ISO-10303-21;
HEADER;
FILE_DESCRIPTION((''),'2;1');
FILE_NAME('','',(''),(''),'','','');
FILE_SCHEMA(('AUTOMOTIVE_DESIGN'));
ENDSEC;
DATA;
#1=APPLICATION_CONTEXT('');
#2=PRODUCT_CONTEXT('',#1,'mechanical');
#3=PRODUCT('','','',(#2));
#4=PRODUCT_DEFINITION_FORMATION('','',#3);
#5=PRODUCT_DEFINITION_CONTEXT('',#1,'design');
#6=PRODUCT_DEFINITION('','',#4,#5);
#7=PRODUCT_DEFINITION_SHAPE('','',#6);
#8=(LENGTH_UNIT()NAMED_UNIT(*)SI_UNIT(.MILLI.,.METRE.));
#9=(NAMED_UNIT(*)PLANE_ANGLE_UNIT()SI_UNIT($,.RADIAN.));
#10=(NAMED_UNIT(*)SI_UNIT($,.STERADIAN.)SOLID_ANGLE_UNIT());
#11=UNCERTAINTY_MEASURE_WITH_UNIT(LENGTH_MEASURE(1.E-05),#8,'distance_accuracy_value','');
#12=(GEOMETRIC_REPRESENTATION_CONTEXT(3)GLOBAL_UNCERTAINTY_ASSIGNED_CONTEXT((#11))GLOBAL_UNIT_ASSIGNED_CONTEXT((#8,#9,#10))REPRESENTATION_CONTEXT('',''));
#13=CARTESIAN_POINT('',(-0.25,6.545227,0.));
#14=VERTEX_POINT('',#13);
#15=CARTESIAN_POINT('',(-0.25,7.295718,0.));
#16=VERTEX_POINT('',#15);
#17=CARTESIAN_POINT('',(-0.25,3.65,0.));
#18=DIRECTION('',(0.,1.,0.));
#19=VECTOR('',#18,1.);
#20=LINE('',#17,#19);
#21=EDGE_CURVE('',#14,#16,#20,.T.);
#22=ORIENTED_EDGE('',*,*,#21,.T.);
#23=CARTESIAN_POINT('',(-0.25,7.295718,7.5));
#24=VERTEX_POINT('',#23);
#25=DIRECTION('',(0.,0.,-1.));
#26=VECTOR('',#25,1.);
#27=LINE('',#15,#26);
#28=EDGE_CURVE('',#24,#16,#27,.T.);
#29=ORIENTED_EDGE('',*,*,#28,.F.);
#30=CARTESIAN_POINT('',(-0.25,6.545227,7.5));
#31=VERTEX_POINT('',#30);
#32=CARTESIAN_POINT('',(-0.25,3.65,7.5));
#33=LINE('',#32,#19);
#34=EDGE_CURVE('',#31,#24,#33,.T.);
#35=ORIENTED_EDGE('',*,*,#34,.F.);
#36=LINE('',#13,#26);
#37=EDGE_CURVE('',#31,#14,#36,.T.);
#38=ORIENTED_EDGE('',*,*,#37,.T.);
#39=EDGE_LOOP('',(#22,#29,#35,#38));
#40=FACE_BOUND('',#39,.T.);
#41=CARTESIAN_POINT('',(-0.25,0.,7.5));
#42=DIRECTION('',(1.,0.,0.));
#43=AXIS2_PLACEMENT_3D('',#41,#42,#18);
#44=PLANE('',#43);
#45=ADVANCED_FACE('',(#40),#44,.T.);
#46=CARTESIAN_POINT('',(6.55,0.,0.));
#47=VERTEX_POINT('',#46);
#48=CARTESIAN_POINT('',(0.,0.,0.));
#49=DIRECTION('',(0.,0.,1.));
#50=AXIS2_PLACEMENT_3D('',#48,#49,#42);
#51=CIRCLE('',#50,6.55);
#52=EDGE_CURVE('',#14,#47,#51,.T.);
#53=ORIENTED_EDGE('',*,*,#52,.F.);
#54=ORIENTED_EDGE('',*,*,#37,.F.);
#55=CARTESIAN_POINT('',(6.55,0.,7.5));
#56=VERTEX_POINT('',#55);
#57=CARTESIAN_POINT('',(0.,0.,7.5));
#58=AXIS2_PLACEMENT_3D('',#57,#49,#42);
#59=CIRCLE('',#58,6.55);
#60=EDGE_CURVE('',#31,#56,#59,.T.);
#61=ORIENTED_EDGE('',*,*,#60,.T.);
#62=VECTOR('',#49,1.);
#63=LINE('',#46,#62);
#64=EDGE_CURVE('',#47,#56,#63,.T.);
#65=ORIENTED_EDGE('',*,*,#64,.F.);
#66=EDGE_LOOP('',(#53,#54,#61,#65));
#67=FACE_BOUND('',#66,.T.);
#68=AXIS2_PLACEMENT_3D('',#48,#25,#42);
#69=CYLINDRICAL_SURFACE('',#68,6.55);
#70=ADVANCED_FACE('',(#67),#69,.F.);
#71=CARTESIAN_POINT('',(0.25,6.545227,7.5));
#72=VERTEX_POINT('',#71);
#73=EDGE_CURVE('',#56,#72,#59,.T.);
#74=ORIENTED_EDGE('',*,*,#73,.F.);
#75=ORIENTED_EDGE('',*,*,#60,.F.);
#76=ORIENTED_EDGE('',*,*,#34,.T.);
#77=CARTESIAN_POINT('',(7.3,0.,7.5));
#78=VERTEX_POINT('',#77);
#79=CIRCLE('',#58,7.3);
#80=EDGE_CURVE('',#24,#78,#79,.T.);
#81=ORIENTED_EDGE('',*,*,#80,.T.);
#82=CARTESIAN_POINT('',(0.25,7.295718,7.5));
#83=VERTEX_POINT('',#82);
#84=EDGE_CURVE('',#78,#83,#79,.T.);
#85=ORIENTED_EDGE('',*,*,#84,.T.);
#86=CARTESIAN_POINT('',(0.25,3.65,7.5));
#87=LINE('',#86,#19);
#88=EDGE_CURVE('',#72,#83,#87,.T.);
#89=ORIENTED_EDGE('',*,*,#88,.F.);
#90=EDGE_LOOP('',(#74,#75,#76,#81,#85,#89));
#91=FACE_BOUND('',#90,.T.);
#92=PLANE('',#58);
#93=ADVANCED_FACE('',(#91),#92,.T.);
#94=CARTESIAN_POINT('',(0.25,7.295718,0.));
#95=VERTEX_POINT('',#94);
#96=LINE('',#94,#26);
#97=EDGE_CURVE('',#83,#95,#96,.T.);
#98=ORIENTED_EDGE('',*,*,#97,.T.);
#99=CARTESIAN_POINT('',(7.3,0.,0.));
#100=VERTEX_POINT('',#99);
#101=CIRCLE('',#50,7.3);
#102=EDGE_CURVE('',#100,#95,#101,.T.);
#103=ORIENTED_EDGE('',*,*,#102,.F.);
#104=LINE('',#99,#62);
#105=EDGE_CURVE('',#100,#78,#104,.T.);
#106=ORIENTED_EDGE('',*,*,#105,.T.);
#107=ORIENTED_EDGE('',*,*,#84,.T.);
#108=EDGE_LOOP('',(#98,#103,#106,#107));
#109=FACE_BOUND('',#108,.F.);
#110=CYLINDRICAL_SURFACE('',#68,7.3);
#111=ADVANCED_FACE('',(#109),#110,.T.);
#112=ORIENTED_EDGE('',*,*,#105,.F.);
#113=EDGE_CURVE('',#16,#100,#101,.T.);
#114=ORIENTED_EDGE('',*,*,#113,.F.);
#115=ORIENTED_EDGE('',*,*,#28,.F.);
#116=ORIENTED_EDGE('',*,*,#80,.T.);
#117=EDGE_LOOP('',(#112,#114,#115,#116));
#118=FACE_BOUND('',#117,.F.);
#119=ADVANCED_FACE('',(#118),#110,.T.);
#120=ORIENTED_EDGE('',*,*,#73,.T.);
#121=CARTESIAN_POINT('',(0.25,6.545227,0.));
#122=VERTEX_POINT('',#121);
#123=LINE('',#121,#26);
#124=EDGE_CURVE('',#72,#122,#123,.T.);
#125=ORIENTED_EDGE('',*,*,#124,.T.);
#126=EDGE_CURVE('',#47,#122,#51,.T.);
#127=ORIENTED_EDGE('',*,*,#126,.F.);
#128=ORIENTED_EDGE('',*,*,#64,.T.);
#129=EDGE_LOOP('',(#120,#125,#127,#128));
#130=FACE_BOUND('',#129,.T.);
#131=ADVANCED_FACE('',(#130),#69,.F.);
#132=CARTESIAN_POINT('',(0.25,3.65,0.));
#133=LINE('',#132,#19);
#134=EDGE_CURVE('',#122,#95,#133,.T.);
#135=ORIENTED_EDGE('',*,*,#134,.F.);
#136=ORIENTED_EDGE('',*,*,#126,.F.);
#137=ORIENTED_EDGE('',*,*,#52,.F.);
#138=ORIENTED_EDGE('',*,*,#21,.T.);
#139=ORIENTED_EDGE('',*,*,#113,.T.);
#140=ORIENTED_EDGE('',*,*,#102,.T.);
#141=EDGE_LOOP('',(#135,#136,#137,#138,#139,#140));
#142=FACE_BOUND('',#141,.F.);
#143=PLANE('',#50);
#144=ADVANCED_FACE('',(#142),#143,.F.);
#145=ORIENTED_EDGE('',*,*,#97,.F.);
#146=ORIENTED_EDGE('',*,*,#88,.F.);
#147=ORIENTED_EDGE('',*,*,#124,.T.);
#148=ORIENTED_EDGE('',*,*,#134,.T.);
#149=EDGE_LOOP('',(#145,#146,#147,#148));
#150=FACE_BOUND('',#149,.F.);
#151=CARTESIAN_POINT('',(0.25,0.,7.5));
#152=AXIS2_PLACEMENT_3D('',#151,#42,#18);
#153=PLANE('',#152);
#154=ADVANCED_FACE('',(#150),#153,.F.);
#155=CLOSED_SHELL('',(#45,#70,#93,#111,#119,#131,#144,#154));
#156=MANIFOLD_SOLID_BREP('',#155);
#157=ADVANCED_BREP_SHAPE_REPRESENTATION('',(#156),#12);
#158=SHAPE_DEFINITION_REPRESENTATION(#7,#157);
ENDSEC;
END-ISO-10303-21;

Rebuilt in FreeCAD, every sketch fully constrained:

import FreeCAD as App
import Part
import Sketcher
Q = App.Units.Quantity

doc = App.newDocument("Part")
body = doc.addObject("PartDesign::Body", "Body")

# Sketch on XY plane
sketch1 = body.newObject("Sketcher::SketchObject", "Sketch")
sketch1.AttachmentSupport = (doc.getObject("XY_Plane"), [""])
sketch1.MapMode = "FlatFace"
sketch1.addGeometry([
    Part.Circle(App.Vector(0, 0, 0), App.Vector(0, 0, 1), 7),
    Part.Circle(App.Vector(0, 0, 0), App.Vector(0, 0, 1), 7),
], False)
sketch1.addConstraint([
    Sketcher.Constraint("Coincident", 0, 3, -1, 1),
    Sketcher.Constraint("Coincident", 1, 3, -1, 1),
    Sketcher.Constraint("Diameter", 0, Q("14.6 mm")),
    Sketcher.Constraint("Diameter", 1, Q("13.1 mm")),
])
pad1 = body.newObject("PartDesign::Pad", "Pad")
pad1.Profile = sketch1
pad1.Length = 7.5

# Sketch on XY plane
sketch2 = body.newObject("Sketcher::SketchObject", "Sketch001")
sketch2.AttachmentSupport = (doc.getObject("XY_Plane"), [""])
sketch2.MapMode = "FlatFace"
sketch2.AttachmentOffset = App.Placement(App.Vector(0, 0, 7.5), App.Rotation())
sketch2.addGeometry([
    Part.LineSegment(App.Vector(-0.2, 7.3, 0), App.Vector(-0.2, 0, 0)),
    Part.LineSegment(App.Vector(-0.2, 0, 0), App.Vector(0.2, 0, 0)),
    Part.LineSegment(App.Vector(0.2, 0, 0), App.Vector(0.2, 7.3, 0)),
    Part.LineSegment(App.Vector(0.2, 7.3, 0), App.Vector(-0.2, 7.3, 0)),
], False)
sketch2.addConstraint([
    Sketcher.Constraint("Coincident", 0, 2, 1, 1),
    Sketcher.Constraint("Coincident", 1, 2, 2, 1),
    Sketcher.Constraint("Coincident", 2, 2, 3, 1),
    Sketcher.Constraint("Coincident", 3, 2, 0, 1),
    Sketcher.Constraint("Vertical", 0),
    Sketcher.Constraint("Horizontal", 1),
    Sketcher.Constraint("Vertical", 2),
    Sketcher.Constraint("Horizontal", 3),
    Sketcher.Constraint("Symmetric", 0, 2, 1, 2, -1, 1),
    Sketcher.Constraint("DistanceX", 1, 1, 1, 2, Q("0.5 mm")),
    Sketcher.Constraint("DistanceY", 0, 2, 0, 1, Q("7.3 mm")),
])
pocket1 = body.newObject("PartDesign::Pocket", "Pocket")
pocket1.Profile = sketch2
pocket1.Length = 7.5

doc.recompute()
